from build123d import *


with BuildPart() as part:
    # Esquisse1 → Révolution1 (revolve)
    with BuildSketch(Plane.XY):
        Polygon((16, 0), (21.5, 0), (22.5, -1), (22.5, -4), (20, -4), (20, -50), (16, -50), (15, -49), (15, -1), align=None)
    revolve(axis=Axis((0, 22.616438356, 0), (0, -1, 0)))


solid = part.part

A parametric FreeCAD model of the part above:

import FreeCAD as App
import Part
import Sketcher

V = App.Vector


def add_polygon(sketch, points):
    """Adds a closed chain of lines whose ends are joined by coincident constraints."""
    first, n = sketch.GeometryCount, len(points)
    for a, b in zip(points, points[1:] + points[:1]):
        sketch.addGeometry(Part.LineSegment(App.Vector(*a, 0), App.Vector(*b, 0)), False)
    for i in range(n):
        sketch.addConstraint(Sketcher.Constraint("Coincident", first + i, 2, first + (i + 1) % n, 1))

doc = App.newDocument("Part")
body = doc.addObject("PartDesign::Body", "Body")

# Sketch on XY plane
sketch1 = body.newObject("Sketcher::SketchObject", "Sketch")
sketch1.AttachmentSupport = (doc.getObject("XY_Plane"), [""])
sketch1.MapMode = "FlatFace"
add_polygon(sketch1, [(21.5, 0), (16, 0), (15, -1), (15, -49), (16, -50), (20, -50), (20, -4), (22.5, -4), (22.5, -1)])  # lines 0-8
sketch1.addConstraint(Sketcher.Constraint("Horizontal", 0))
sketch1.addConstraint(Sketcher.Constraint("Vertical", 2))
sketch1.addConstraint(Sketcher.Constraint("Horizontal", 4))
sketch1.addConstraint(Sketcher.Constraint("Vertical", 5))
sketch1.addConstraint(Sketcher.Constraint("Horizontal", 6))
sketch1.addConstraint(Sketcher.Constraint("Vertical", 7))
sketch1.addConstraint(Sketcher.Constraint("PointOnObject", 0, 2, -1))
sketch1.addConstraint(Sketcher.Constraint("Perpendicular", 1, 3))
sketch1.addConstraint(Sketcher.Constraint("Parallel", 3, 8))
sketch1.addConstraint(Sketcher.Constraint("Horizontal", 1, 2, 7, 2))
sketch1.addConstraint(Sketcher.Constraint("Vertical", 0, 2, 3, 2))
sketch1.addConstraint(Sketcher.Constraint("Equal", 1, 3))
sketch1.addConstraint(Sketcher.Constraint("DistanceX", 4, 1, 4, 2, 4.0))
sketch1.addConstraint(Sketcher.Constraint("DistanceY", 2, 2, 2, 1, 48.0))
sketch1.addConstraint(Sketcher.Constraint("DistanceY", 5, 1, 5, 2, 46.0))
sketch1.addConstraint(Sketcher.Constraint("DistanceY", 7, 1, 7, 2, 3.0))
sketch1.addConstraint(Sketcher.Constraint("DistanceX", 0, 2, 0, 1, 5.5))
sketch1.addConstraint(Sketcher.Constraint("DistanceX", -1, 1, 0, 2, 16.0))
revolution = body.newObject("PartDesign::Revolution", "Revolution")
revolution.Profile = sketch1
revolution.ReferenceAxis = (sketch1, ["V_Axis"])
revolution.Angle = 360

doc.recompute()
